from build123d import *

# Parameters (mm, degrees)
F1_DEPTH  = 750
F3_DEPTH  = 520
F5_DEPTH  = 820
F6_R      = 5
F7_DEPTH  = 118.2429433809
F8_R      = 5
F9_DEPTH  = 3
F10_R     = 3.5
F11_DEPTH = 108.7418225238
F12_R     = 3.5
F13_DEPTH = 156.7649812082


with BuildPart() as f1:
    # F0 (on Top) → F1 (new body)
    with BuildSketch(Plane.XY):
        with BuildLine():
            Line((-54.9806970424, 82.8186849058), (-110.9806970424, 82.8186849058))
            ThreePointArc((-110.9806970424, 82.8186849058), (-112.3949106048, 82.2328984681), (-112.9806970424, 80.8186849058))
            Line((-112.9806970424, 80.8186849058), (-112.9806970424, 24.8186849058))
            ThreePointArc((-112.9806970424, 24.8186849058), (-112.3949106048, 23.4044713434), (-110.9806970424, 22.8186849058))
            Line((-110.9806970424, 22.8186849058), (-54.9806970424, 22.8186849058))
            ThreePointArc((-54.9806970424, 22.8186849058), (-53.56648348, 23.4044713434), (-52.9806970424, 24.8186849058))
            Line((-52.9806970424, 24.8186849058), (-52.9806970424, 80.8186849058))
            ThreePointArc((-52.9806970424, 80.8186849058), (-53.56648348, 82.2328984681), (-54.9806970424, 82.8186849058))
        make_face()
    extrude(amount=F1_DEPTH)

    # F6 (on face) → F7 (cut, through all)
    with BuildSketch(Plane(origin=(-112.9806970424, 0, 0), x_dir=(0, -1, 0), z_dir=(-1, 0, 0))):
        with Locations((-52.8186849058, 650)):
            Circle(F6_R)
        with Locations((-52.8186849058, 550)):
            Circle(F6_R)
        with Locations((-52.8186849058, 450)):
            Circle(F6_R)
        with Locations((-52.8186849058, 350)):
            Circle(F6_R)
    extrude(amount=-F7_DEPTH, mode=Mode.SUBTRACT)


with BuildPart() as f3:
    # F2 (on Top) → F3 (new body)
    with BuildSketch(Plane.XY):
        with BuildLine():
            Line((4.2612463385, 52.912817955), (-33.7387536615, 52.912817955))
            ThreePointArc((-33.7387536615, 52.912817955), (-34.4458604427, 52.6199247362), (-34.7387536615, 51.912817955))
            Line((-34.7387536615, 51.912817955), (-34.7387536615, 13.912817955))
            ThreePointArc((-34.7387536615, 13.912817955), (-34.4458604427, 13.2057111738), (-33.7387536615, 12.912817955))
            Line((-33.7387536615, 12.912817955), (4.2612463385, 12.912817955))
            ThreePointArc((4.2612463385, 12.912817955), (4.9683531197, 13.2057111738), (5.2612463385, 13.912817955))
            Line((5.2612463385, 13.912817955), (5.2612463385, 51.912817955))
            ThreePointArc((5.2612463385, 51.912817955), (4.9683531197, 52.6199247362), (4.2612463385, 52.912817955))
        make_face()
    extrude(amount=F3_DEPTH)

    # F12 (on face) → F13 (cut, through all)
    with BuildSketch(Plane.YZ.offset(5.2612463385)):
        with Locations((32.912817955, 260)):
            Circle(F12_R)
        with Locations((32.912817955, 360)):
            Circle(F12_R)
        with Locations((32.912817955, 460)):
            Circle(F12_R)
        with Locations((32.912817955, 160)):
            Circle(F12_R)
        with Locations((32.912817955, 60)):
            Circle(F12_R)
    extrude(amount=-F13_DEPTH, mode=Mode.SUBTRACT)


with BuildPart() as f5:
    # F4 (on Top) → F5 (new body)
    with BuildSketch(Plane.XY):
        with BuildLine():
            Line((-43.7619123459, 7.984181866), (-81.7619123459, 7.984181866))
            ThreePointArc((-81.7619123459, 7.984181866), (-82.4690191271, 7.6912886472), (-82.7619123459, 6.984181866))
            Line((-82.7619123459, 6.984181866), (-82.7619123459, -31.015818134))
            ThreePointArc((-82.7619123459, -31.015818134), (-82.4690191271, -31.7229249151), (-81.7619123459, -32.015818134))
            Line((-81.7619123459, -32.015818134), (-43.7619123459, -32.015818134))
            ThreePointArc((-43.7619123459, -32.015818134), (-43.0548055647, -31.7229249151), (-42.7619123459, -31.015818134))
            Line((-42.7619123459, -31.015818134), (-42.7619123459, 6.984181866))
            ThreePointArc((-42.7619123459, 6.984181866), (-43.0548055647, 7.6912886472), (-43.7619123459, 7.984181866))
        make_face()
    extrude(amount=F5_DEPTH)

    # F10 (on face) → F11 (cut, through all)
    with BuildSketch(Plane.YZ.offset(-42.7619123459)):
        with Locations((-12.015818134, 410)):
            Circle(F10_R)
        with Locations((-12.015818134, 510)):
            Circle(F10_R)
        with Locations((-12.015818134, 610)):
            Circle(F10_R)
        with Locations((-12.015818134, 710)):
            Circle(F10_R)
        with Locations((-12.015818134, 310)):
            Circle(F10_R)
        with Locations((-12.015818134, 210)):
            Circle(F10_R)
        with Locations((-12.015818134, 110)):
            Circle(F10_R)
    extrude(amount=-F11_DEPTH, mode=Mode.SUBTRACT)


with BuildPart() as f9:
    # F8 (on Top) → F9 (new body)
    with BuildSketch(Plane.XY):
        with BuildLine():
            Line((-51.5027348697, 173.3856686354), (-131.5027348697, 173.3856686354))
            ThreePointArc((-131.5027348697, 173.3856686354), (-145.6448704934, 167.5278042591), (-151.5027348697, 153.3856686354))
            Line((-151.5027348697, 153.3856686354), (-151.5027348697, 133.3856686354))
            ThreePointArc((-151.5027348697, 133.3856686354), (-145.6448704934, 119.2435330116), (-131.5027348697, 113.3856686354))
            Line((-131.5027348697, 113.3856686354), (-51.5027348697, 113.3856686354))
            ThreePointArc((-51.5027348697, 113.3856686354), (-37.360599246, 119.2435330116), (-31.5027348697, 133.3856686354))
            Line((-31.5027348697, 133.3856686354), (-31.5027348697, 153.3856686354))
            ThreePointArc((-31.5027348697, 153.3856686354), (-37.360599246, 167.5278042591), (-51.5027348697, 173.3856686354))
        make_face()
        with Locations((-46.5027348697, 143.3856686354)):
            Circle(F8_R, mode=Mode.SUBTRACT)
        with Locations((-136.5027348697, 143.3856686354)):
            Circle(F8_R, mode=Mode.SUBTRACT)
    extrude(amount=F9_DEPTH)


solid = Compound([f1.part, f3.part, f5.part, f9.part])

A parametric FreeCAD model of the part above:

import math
import FreeCAD as App
import Part
import Sketcher
Q = App.Units.Quantity

doc = App.newDocument("Part")
params = doc.addObject("Spreadsheet::Sheet", "Params")
for row, (alias, value) in enumerate([
    ("sketch1_radius", "2 mm"),
    ("sketch1_width", "56 mm"),
    ("pad1_length", "750 mm"),
    ("sketch2_diameter", "10 mm"),
    ("sketch3_radius", "1 mm"),
    ("sketch3_width", "38 mm"),
    ("pad2_length", "520 mm"),
    ("sketch4_diameter", "7 mm"),
    ("sketch5_radius", "1 mm"),
    ("sketch5_width", "38 mm"),
    ("pad3_length", "820 mm"),
    ("sketch6_diameter", "7 mm"),
    ("sketch7_diameter", "10 mm"),
    ("sketch7_radius", "20 mm"),
    ("sketch7_width", "80 mm"),
    ("sketch7_height", "20 mm"),
    ("pad4_length", "3 mm"),
], start=1):
    params.set(f"A{row}", alias)
    params.set(f"B{row}", "=" + value)
    params.setAlias(f"B{row}", alias)

body = doc.addObject("PartDesign::Body", "Body")

sketch1 = doc.addObject("Sketcher::SketchObject", "Sketch")
body.addObject(sketch1)
sketch1.AttachmentSupport = (doc.XY_Plane, [""])
sketch1.MapMode = "FlatFace"
sketch1.addGeometry([
    Part.LineSegment(App.Vector(-55, 82.8, 0), App.Vector(-111, 82.8, 0)),
    Part.ArcOfCircle(Part.Circle(App.Vector(-111, 80.8, 0), App.Vector(0, 0, 1), 2), math.radians(90), math.radians(180)),
    Part.LineSegment(App.Vector(-113, 80.8, 0), App.Vector(-113, 24.8, 0)),
    Part.ArcOfCircle(Part.Circle(App.Vector(-111, 24.8, 0), App.Vector(0, 0, 1), 2), math.radians(180), math.radians(270)),
    Part.LineSegment(App.Vector(-111, 22.8, 0), App.Vector(-55, 22.8, 0)),
    Part.ArcOfCircle(Part.Circle(App.Vector(-55, 24.8, 0), App.Vector(0, 0, 1), 2), math.radians(-90), math.radians(0)),
    Part.LineSegment(App.Vector(-53, 24.8, 0), App.Vector(-53, 80.8, 0)),
    Part.ArcOfCircle(Part.Circle(App.Vector(-55, 80.8, 0), App.Vector(0, 0, 1), 2), math.radians(0), math.radians(90)),
], False)
sketch1.addConstraint([
    Sketcher.Constraint("Tangent", 0, 2, 1, 1),
    Sketcher.Constraint("Tangent", 1, 2, 2, 1),
    Sketcher.Constraint("Tangent", 2, 2, 3, 1),
    Sketcher.Constraint("Tangent", 3, 2, 4, 1),
    Sketcher.Constraint("Tangent", 4, 2, 5, 1),
    Sketcher.Constraint("Tangent", 5, 2, 6, 1),
    Sketcher.Constraint("Tangent", 6, 2, 7, 1),
    Sketcher.Constraint("Tangent", 7, 2, 0, 1),
    Sketcher.Constraint("Horizontal", 0),
    Sketcher.Constraint("Vertical", 2),
    Sketcher.Constraint("Horizontal", 4),
    Sketcher.Constraint("Vertical", 6),
    Sketcher.Constraint("Equal", 1, 3),
    Sketcher.Constraint("Equal", 3, 5),
    Sketcher.Constraint("Equal", 5, 7),
    Sketcher.Constraint("Equal", 4, 2),
    Sketcher.Constraint("Radius", 1, Q("2 mm")),
    Sketcher.Constraint("DistanceX", 0, 2, 0, 1, Q("56 mm")),
    Sketcher.Constraint("DistanceX", 1, 3, -1, 1, Q("110.980697 mm")),
    Sketcher.Constraint("DistanceY", -1, 1, 1, 3, Q("80.818685 mm")),
])
sketch1.setExpression("Constraints[16]", "Params.sketch1_radius")
sketch1.setExpression("Constraints[17]", "Params.sketch1_width")
pad1 = doc.addObject("PartDesign::Pad", "Pad")
body.addObject(pad1)
pad1.Profile = sketch1
pad1.setExpression("Length", "Params.pad1_length")

sketch2 = doc.addObject("Sketcher::SketchObject", "Sketch001")
body.addObject(sketch2)
sketch2.AttachmentSupport = (doc.YZ_Plane, [""])
sketch2.MapMode = "FlatFace"
sketch2.AttachmentOffset = App.Placement(App.Vector(0, 0, -112.980697), App.Rotation())
sketch2.addGeometry([
    Part.Circle(App.Vector(53, 650, 0), App.Vector(0, 0, 1), 5),
    Part.Circle(App.Vector(53, 550, 0), App.Vector(0, 0, 1), 5),
    Part.Circle(App.Vector(53, 450, 0), App.Vector(0, 0, 1), 5),
    Part.Circle(App.Vector(53, 350, 0), App.Vector(0, 0, 1), 5),
], False)
sketch2.addConstraint([
    Sketcher.Constraint("Equal", 0, 1),
    Sketcher.Constraint("Equal", 1, 2),
    Sketcher.Constraint("Equal", 2, 3),
    Sketcher.Constraint("Vertical", 0, 3, 1, 3),
    Sketcher.Constraint("Vertical", 1, 3, 2, 3),
    Sketcher.Constraint("Vertical", 2, 3, 3, 3),
    Sketcher.Constraint("Diameter", 0, Q("10 mm")),
    Sketcher.Constraint("DistanceY", -1, 1, 0, 3, Q("650 mm")),
    Sketcher.Constraint("DistanceY", -1, 1, 1, 3, Q("550 mm")),
    Sketcher.Constraint("DistanceY", -1, 1, 2, 3, Q("450 mm")),
    Sketcher.Constraint("DistanceY", -1, 1, 3, 3, Q("350 mm")),
    Sketcher.Constraint("DistanceX", -1, 1, 0, 3, Q("52.818685 mm")),
])
sketch2.setExpression("Constraints[6]", "Params.sketch2_diameter")
pocket1 = doc.addObject("PartDesign::Pocket", "Pocket")
body.addObject(pocket1)
pocket1.Profile = sketch2
pocket1.Type = "ThroughAll"
pocket1.Reversed = True
body2 = doc.addObject("PartDesign::Body", "Body001")

sketch3 = doc.addObject("Sketcher::SketchObject", "Sketch002")
body2.addObject(sketch3)
sketch3.AttachmentSupport = (doc.getObject("XY_Plane001"), [""])
sketch3.MapMode = "FlatFace"
sketch3.addGeometry([
    Part.LineSegment(App.Vector(4.3, 52.9, 0), App.Vector(-33.7, 52.9, 0)),
    Part.ArcOfCircle(Part.Circle(App.Vector(-33.7, 51.9, 0), App.Vector(0, 0, 1), 1), math.radians(90), math.radians(180)),
    Part.LineSegment(App.Vector(-34.7, 51.9, 0), App.Vector(-34.7, 13.9, 0)),
    Part.ArcOfCircle(Part.Circle(App.Vector(-33.7, 13.9, 0), App.Vector(0, 0, 1), 1), math.radians(180), math.radians(270)),
    Part.LineSegment(App.Vector(-33.7, 12.9, 0), App.Vector(4.3, 12.9, 0)),
    Part.ArcOfCircle(Part.Circle(App.Vector(4.3, 13.9, 0), App.Vector(0, 0, 1), 1), math.radians(-90), math.radians(0)),
    Part.LineSegment(App.Vector(5.3, 13.9, 0), App.Vector(5.3, 51.9, 0)),
    Part.ArcOfCircle(Part.Circle(App.Vector(4.3, 51.9, 0), App.Vector(0, 0, 1), 1), math.radians(0), math.radians(90)),
], False)
sketch3.addConstraint([
    Sketcher.Constraint("Tangent", 0, 2, 1, 1),
    Sketcher.Constraint("Tangent", 1, 2, 2, 1),
    Sketcher.Constraint("Tangent", 2, 2, 3, 1),
    Sketcher.Constraint("Tangent", 3, 2, 4, 1),
    Sketcher.Constraint("Tangent", 4, 2, 5, 1),
    Sketcher.Constraint("Tangent", 5, 2, 6, 1),
    Sketcher.Constraint("Tangent", 6, 2, 7, 1),
    Sketcher.Constraint("Tangent", 7, 2, 0, 1),
    Sketcher.Constraint("Horizontal", 0),
    Sketcher.Constraint("Vertical", 2),
    Sketcher.Constraint("Horizontal", 4),
    Sketcher.Constraint("Vertical", 6),
    Sketcher.Constraint("Equal", 1, 3),
    Sketcher.Constraint("Equal", 3, 5),
    Sketcher.Constraint("Equal", 5, 7),
    Sketcher.Constraint("Equal", 4, 2),
    Sketcher.Constraint("Radius", 1, Q("1 mm")),
    Sketcher.Constraint("DistanceX", 0, 2, 0, 1, Q("38 mm")),
    Sketcher.Constraint("DistanceX", 1, 3, -1, 1, Q("33.738754 mm")),
    Sketcher.Constraint("DistanceY", -1, 1, 1, 3, Q("51.912818 mm")),
])
sketch3.setExpression("Constraints[16]", "Params.sketch3_radius")
sketch3.setExpression("Constraints[17]", "Params.sketch3_width")
pad2 = doc.addObject("PartDesign::Pad", "Pad001")
body2.addObject(pad2)
pad2.Profile = sketch3
pad2.setExpression("Length", "Params.pad2_length")

sketch4 = doc.addObject("Sketcher::SketchObject", "Sketch003")
body2.addObject(sketch4)
sketch4.AttachmentSupport = (doc.getObject("YZ_Plane001"), [""])
sketch4.MapMode = "FlatFace"
sketch4.AttachmentOffset = App.Placement(App.Vector(0, 0, 5.261246), App.Rotation())
sketch4.addGeometry([
    Part.Circle(App.Vector(32.9, 260, 0), App.Vector(0, 0, 1), 3.5),
    Part.Circle(App.Vector(32.9, 360, 0), App.Vector(0, 0, 1), 3.5),
    Part.Circle(App.Vector(32.9, 460, 0), App.Vector(0, 0, 1), 3.5),
    Part.Circle(App.Vector(32.9, 160, 0), App.Vector(0, 0, 1), 3.5),
    Part.Circle(App.Vector(32.9, 60, 0), App.Vector(0, 0, 1), 3.5),
], False)
sketch4.addConstraint([
    Sketcher.Constraint("Equal", 0, 1),
    Sketcher.Constraint("Equal", 1, 2),
    Sketcher.Constraint("Equal", 2, 3),
    Sketcher.Constraint("Equal", 3, 4),
    Sketcher.Constraint("Vertical", 0, 3, 1, 3),
    Sketcher.Constraint("Vertical", 1, 3, 2, 3),
    Sketcher.Constraint("Vertical", 2, 3, 3, 3),
    Sketcher.Constraint("Vertical", 3, 3, 4, 3),
    Sketcher.Constraint("Diameter", 0, Q("7 mm")),
    Sketcher.Constraint("DistanceY", -1, 1, 0, 3, Q("260 mm")),
    Sketcher.Constraint("DistanceY", -1, 1, 1, 3, Q("360 mm")),
    Sketcher.Constraint("DistanceY", -1, 1, 2, 3, Q("460 mm")),
    Sketcher.Constraint("DistanceY", -1, 1, 3, 3, Q("160 mm")),
    Sketcher.Constraint("DistanceY", -1, 1, 4, 3, Q("60 mm")),
    Sketcher.Constraint("DistanceX", -1, 1, 0, 3, Q("32.912818 mm")),
])
sketch4.setExpression("Constraints[8]", "Params.sketch4_diameter")
pocket2 = doc.addObject("PartDesign::Pocket", "Pocket001")
body2.addObject(pocket2)
pocket2.Profile = sketch4
pocket2.Type = "ThroughAll"
body3 = doc.addObject("PartDesign::Body", "Body002")

sketch5 = doc.addObject("Sketcher::SketchObject", "Sketch004")
body3.addObject(sketch5)
sketch5.AttachmentSupport = (doc.getObject("XY_Plane002"), [""])
sketch5.MapMode = "FlatFace"
sketch5.addGeometry([
    Part.LineSegment(App.Vector(-43.8, 8, 0), App.Vector(-81.8, 8, 0)),
    Part.ArcOfCircle(Part.Circle(App.Vector(-81.8, 7, 0), App.Vector(0, 0, 1), 1), math.radians(90), math.radians(180)),
    Part.LineSegment(App.Vector(-82.8, 7, 0), App.Vector(-82.8, -31, 0)),
    Part.ArcOfCircle(Part.Circle(App.Vector(-81.8, -31, 0), App.Vector(0, 0, 1), 1), math.radians(180), math.radians(270)),
    Part.LineSegment(App.Vector(-81.8, -32, 0), App.Vector(-43.8, -32, 0)),
    Part.ArcOfCircle(Part.Circle(App.Vector(-43.8, -31, 0), App.Vector(0, 0, 1), 1), math.radians(-90), math.radians(0)),
    Part.LineSegment(App.Vector(-42.8, -31, 0), App.Vector(-42.8, 7, 0)),
    Part.ArcOfCircle(Part.Circle(App.Vector(-43.8, 7, 0), App.Vector(0, 0, 1), 1), math.radians(0), math.radians(90)),
], False)
sketch5.addConstraint([
    Sketcher.Constraint("Tangent", 0, 2, 1, 1),
    Sketcher.Constraint("Tangent", 1, 2, 2, 1),
    Sketcher.Constraint("Tangent", 2, 2, 3, 1),
    Sketcher.Constraint("Tangent", 3, 2, 4, 1),
    Sketcher.Constraint("Tangent", 4, 2, 5, 1),
    Sketcher.Constraint("Tangent", 5, 2, 6, 1),
    Sketcher.Constraint("Tangent", 6, 2, 7, 1),
    Sketcher.Constraint("Tangent", 7, 2, 0, 1),
    Sketcher.Constraint("Horizontal", 0),
    Sketcher.Constraint("Vertical", 2),
    Sketcher.Constraint("Horizontal", 4),
    Sketcher.Constraint("Vertical", 6),
    Sketcher.Constraint("Equal", 1, 3),
    Sketcher.Constraint("Equal", 3, 5),
    Sketcher.Constraint("Equal", 5, 7),
    Sketcher.Constraint("Equal", 4, 2),
    Sketcher.Constraint("Radius", 1, Q("1 mm")),
    Sketcher.Constraint("DistanceX", 0, 2, 0, 1, Q("38 mm")),
    Sketcher.Constraint("DistanceY", -1, 1, 1, 3, Q("6.984182 mm")),
    Sketcher.Constraint("DistanceX", 1, 3, -1, 1, Q("81.761912 mm")),
])
sketch5.setExpression("Constraints[16]", "Params.sketch5_radius")
sketch5.setExpression("Constraints[17]", "Params.sketch5_width")
pad3 = doc.addObject("PartDesign::Pad", "Pad002")
body3.addObject(pad3)
pad3.Profile = sketch5
pad3.setExpression("Length", "Params.pad3_length")

sketch6 = doc.addObject("Sketcher::SketchObject", "Sketch005")
body3.addObject(sketch6)
sketch6.AttachmentSupport = (doc.getObject("YZ_Plane002"), [""])
sketch6.MapMode = "FlatFace"
sketch6.AttachmentOffset = App.Placement(App.Vector(0, 0, -42.761912), App.Rotation())
sketch6.addGeometry([
    Part.Circle(App.Vector(-12, 410, 0), App.Vector(0, 0, 1), 3.5),
    Part.Circle(App.Vector(-12, 510, 0), App.Vector(0, 0, 1), 3.5),
    Part.Circle(App.Vector(-12, 610, 0), App.Vector(0, 0, 1), 3.5),
    Part.Circle(App.Vector(-12, 710, 0), App.Vector(0, 0, 1), 3.5),
    Part.Circle(App.Vector(-12, 310, 0), App.Vector(0, 0, 1), 3.5),
    Part.Circle(App.Vector(-12, 210, 0), App.Vector(0, 0, 1), 3.5),
    Part.Circle(App.Vector(-12, 110, 0), App.Vector(0, 0, 1), 3.5),
], False)
sketch6.addConstraint([
    Sketcher.Constraint("Equal", 0, 1),
    Sketcher.Constraint("Equal", 1, 2),
    Sketcher.Constraint("Equal", 2, 3),
    Sketcher.Constraint("Equal", 3, 4),
    Sketcher.Constraint("Equal", 4, 5),
    Sketcher.Constraint("Equal", 5, 6),
    Sketcher.Constraint("Vertical", 0, 3, 1, 3),
    Sketcher.Constraint("Vertical", 1, 3, 2, 3),
    Sketcher.Constraint("Vertical", 2, 3, 3, 3),
    Sketcher.Constraint("Vertical", 3, 3, 4, 3),
    Sketcher.Constraint("Vertical", 4, 3, 5, 3),
    Sketcher.Constraint("Vertical", 5, 3, 6, 3),
    Sketcher.Constraint("Diameter", 0, Q("7 mm")),
    Sketcher.Constraint("DistanceY", -1, 1, 0, 3, Q("410 mm")),
    Sketcher.Constraint("DistanceY", -1, 1, 1, 3, Q("510 mm")),
    Sketcher.Constraint("DistanceY", -1, 1, 2, 3, Q("610 mm")),
    Sketcher.Constraint("DistanceY", -1, 1, 3, 3, Q("710 mm")),
    Sketcher.Constraint("DistanceY", -1, 1, 4, 3, Q("310 mm")),
    Sketcher.Constraint("DistanceY", -1, 1, 5, 3, Q("210 mm")),
    Sketcher.Constraint("DistanceY", -1, 1, 6, 3, Q("110 mm")),
    Sketcher.Constraint("DistanceX", 0, 3, -1, 1, Q("12.015818 mm")),
])
sketch6.setExpression("Constraints[12]", "Params.sketch6_diameter")
pocket3 = doc.addObject("PartDesign::Pocket", "Pocket002")
body3.addObject(pocket3)
pocket3.Profile = sketch6
pocket3.Type = "ThroughAll"
body4 = doc.addObject("PartDesign::Body", "Body003")

sketch7 = doc.addObject("Sketcher::SketchObject", "Sketch006")
body4.addObject(sketch7)
sketch7.AttachmentSupport = (doc.getObject("XY_Plane003"), [""])
sketch7.MapMode = "FlatFace"
sketch7.addGeometry([
    Part.LineSegment(App.Vector(-52, 173, 0), App.Vector(-132, 173, 0)),
    Part.ArcOfCircle(Part.Circle(App.Vector(-132, 153, 0), App.Vector(0, 0, 1), 20), math.radians(90), math.radians(180)),
    Part.LineSegment(App.Vector(-152, 153, 0), App.Vector(-152, 133, 0)),
    Part.ArcOfCircle(Part.Circle(App.Vector(-132, 133, 0), App.Vector(0, 0, 1), 20), math.radians(180), math.radians(270)),
    Part.LineSegment(App.Vector(-132, 113, 0), App.Vector(-52, 113, 0)),
    Part.ArcOfCircle(Part.Circle(App.Vector(-52, 133, 0), App.Vector(0, 0, 1), 20), math.radians(-90), math.radians(0)),
    Part.LineSegment(App.Vector(-32, 133, 0), App.Vector(-32, 153, 0)),
    Part.ArcOfCircle(Part.Circle(App.Vector(-52, 153, 0), App.Vector(0, 0, 1), 20), math.radians(0), math.radians(90)),
    Part.Circle(App.Vector(-137, 143, 0), App.Vector(0, 0, 1), 5),
    Part.Circle(App.Vector(-47, 143, 0), App.Vector(0, 0, 1), 5),
], False)
sketch7.addConstraint([
    Sketcher.Constraint("Tangent", 0, 2, 1, 1),
    Sketcher.Constraint("Tangent", 1, 2, 2, 1),
    Sketcher.Constraint("Tangent", 2, 2, 3, 1),
    Sketcher.Constraint("Tangent", 3, 2, 4, 1),
    Sketcher.Constraint("Tangent", 4, 2, 5, 1),
    Sketcher.Constraint("Tangent", 5, 2, 6, 1),
    Sketcher.Constraint("Tangent", 6, 2, 7, 1),
    Sketcher.Constraint("Tangent", 7, 2, 0, 1),
    Sketcher.Constraint("Horizontal", 0),
    Sketcher.Constraint("Vertical", 2),
    Sketcher.Constraint("Horizontal", 4),
    Sketcher.Constraint("Vertical", 6),
    Sketcher.Constraint("Equal", 1, 3),
    Sketcher.Constraint("Equal", 3, 5),
    Sketcher.Constraint("Equal", 5, 7),
    Sketcher.Constraint("Equal", 8, 9),
    Sketcher.Constraint("Horizontal", 8, 3, 9, 3),
    Sketcher.Constraint("Diameter", 8, Q("10 mm")),
    Sketcher.Constraint("Radius", 1, Q("20 mm")),
    Sketcher.Constraint("DistanceX", 0, 2, 0, 1, Q("80 mm")),
    Sketcher.Constraint("DistanceY", 2, 2, 2, 1, Q("20 mm")),
    Sketcher.Constraint("DistanceX", 8, 3, 1, 3, Q("5 mm")),
    Sketcher.Constraint("DistanceY", 8, 3, 1, 3, Q("10 mm")),
    Sketcher.Constraint("DistanceX", 5, 3, 9, 3, Q("5 mm")),
    Sketcher.Constraint("DistanceY", -1, 1, 1, 3, Q("153.385669 mm")),
    Sketcher.Constraint("DistanceX", 1, 3, -1, 1, Q("131.502735 mm")),
])
sketch7.setExpression("Constraints[17]", "Params.sketch7_diameter")
sketch7.setExpression("Constraints[18]", "Params.sketch7_radius")
sketch7.setExpression("Constraints[19]", "Params.sketch7_width")
sketch7.setExpression("Constraints[20]", "Params.sketch7_height")
pad4 = doc.addObject("PartDesign::Pad", "Pad003")
body4.addObject(pad4)
pad4.Profile = sketch7
pad4.setExpression("Length", "Params.pad4_length")

doc.recompute()
